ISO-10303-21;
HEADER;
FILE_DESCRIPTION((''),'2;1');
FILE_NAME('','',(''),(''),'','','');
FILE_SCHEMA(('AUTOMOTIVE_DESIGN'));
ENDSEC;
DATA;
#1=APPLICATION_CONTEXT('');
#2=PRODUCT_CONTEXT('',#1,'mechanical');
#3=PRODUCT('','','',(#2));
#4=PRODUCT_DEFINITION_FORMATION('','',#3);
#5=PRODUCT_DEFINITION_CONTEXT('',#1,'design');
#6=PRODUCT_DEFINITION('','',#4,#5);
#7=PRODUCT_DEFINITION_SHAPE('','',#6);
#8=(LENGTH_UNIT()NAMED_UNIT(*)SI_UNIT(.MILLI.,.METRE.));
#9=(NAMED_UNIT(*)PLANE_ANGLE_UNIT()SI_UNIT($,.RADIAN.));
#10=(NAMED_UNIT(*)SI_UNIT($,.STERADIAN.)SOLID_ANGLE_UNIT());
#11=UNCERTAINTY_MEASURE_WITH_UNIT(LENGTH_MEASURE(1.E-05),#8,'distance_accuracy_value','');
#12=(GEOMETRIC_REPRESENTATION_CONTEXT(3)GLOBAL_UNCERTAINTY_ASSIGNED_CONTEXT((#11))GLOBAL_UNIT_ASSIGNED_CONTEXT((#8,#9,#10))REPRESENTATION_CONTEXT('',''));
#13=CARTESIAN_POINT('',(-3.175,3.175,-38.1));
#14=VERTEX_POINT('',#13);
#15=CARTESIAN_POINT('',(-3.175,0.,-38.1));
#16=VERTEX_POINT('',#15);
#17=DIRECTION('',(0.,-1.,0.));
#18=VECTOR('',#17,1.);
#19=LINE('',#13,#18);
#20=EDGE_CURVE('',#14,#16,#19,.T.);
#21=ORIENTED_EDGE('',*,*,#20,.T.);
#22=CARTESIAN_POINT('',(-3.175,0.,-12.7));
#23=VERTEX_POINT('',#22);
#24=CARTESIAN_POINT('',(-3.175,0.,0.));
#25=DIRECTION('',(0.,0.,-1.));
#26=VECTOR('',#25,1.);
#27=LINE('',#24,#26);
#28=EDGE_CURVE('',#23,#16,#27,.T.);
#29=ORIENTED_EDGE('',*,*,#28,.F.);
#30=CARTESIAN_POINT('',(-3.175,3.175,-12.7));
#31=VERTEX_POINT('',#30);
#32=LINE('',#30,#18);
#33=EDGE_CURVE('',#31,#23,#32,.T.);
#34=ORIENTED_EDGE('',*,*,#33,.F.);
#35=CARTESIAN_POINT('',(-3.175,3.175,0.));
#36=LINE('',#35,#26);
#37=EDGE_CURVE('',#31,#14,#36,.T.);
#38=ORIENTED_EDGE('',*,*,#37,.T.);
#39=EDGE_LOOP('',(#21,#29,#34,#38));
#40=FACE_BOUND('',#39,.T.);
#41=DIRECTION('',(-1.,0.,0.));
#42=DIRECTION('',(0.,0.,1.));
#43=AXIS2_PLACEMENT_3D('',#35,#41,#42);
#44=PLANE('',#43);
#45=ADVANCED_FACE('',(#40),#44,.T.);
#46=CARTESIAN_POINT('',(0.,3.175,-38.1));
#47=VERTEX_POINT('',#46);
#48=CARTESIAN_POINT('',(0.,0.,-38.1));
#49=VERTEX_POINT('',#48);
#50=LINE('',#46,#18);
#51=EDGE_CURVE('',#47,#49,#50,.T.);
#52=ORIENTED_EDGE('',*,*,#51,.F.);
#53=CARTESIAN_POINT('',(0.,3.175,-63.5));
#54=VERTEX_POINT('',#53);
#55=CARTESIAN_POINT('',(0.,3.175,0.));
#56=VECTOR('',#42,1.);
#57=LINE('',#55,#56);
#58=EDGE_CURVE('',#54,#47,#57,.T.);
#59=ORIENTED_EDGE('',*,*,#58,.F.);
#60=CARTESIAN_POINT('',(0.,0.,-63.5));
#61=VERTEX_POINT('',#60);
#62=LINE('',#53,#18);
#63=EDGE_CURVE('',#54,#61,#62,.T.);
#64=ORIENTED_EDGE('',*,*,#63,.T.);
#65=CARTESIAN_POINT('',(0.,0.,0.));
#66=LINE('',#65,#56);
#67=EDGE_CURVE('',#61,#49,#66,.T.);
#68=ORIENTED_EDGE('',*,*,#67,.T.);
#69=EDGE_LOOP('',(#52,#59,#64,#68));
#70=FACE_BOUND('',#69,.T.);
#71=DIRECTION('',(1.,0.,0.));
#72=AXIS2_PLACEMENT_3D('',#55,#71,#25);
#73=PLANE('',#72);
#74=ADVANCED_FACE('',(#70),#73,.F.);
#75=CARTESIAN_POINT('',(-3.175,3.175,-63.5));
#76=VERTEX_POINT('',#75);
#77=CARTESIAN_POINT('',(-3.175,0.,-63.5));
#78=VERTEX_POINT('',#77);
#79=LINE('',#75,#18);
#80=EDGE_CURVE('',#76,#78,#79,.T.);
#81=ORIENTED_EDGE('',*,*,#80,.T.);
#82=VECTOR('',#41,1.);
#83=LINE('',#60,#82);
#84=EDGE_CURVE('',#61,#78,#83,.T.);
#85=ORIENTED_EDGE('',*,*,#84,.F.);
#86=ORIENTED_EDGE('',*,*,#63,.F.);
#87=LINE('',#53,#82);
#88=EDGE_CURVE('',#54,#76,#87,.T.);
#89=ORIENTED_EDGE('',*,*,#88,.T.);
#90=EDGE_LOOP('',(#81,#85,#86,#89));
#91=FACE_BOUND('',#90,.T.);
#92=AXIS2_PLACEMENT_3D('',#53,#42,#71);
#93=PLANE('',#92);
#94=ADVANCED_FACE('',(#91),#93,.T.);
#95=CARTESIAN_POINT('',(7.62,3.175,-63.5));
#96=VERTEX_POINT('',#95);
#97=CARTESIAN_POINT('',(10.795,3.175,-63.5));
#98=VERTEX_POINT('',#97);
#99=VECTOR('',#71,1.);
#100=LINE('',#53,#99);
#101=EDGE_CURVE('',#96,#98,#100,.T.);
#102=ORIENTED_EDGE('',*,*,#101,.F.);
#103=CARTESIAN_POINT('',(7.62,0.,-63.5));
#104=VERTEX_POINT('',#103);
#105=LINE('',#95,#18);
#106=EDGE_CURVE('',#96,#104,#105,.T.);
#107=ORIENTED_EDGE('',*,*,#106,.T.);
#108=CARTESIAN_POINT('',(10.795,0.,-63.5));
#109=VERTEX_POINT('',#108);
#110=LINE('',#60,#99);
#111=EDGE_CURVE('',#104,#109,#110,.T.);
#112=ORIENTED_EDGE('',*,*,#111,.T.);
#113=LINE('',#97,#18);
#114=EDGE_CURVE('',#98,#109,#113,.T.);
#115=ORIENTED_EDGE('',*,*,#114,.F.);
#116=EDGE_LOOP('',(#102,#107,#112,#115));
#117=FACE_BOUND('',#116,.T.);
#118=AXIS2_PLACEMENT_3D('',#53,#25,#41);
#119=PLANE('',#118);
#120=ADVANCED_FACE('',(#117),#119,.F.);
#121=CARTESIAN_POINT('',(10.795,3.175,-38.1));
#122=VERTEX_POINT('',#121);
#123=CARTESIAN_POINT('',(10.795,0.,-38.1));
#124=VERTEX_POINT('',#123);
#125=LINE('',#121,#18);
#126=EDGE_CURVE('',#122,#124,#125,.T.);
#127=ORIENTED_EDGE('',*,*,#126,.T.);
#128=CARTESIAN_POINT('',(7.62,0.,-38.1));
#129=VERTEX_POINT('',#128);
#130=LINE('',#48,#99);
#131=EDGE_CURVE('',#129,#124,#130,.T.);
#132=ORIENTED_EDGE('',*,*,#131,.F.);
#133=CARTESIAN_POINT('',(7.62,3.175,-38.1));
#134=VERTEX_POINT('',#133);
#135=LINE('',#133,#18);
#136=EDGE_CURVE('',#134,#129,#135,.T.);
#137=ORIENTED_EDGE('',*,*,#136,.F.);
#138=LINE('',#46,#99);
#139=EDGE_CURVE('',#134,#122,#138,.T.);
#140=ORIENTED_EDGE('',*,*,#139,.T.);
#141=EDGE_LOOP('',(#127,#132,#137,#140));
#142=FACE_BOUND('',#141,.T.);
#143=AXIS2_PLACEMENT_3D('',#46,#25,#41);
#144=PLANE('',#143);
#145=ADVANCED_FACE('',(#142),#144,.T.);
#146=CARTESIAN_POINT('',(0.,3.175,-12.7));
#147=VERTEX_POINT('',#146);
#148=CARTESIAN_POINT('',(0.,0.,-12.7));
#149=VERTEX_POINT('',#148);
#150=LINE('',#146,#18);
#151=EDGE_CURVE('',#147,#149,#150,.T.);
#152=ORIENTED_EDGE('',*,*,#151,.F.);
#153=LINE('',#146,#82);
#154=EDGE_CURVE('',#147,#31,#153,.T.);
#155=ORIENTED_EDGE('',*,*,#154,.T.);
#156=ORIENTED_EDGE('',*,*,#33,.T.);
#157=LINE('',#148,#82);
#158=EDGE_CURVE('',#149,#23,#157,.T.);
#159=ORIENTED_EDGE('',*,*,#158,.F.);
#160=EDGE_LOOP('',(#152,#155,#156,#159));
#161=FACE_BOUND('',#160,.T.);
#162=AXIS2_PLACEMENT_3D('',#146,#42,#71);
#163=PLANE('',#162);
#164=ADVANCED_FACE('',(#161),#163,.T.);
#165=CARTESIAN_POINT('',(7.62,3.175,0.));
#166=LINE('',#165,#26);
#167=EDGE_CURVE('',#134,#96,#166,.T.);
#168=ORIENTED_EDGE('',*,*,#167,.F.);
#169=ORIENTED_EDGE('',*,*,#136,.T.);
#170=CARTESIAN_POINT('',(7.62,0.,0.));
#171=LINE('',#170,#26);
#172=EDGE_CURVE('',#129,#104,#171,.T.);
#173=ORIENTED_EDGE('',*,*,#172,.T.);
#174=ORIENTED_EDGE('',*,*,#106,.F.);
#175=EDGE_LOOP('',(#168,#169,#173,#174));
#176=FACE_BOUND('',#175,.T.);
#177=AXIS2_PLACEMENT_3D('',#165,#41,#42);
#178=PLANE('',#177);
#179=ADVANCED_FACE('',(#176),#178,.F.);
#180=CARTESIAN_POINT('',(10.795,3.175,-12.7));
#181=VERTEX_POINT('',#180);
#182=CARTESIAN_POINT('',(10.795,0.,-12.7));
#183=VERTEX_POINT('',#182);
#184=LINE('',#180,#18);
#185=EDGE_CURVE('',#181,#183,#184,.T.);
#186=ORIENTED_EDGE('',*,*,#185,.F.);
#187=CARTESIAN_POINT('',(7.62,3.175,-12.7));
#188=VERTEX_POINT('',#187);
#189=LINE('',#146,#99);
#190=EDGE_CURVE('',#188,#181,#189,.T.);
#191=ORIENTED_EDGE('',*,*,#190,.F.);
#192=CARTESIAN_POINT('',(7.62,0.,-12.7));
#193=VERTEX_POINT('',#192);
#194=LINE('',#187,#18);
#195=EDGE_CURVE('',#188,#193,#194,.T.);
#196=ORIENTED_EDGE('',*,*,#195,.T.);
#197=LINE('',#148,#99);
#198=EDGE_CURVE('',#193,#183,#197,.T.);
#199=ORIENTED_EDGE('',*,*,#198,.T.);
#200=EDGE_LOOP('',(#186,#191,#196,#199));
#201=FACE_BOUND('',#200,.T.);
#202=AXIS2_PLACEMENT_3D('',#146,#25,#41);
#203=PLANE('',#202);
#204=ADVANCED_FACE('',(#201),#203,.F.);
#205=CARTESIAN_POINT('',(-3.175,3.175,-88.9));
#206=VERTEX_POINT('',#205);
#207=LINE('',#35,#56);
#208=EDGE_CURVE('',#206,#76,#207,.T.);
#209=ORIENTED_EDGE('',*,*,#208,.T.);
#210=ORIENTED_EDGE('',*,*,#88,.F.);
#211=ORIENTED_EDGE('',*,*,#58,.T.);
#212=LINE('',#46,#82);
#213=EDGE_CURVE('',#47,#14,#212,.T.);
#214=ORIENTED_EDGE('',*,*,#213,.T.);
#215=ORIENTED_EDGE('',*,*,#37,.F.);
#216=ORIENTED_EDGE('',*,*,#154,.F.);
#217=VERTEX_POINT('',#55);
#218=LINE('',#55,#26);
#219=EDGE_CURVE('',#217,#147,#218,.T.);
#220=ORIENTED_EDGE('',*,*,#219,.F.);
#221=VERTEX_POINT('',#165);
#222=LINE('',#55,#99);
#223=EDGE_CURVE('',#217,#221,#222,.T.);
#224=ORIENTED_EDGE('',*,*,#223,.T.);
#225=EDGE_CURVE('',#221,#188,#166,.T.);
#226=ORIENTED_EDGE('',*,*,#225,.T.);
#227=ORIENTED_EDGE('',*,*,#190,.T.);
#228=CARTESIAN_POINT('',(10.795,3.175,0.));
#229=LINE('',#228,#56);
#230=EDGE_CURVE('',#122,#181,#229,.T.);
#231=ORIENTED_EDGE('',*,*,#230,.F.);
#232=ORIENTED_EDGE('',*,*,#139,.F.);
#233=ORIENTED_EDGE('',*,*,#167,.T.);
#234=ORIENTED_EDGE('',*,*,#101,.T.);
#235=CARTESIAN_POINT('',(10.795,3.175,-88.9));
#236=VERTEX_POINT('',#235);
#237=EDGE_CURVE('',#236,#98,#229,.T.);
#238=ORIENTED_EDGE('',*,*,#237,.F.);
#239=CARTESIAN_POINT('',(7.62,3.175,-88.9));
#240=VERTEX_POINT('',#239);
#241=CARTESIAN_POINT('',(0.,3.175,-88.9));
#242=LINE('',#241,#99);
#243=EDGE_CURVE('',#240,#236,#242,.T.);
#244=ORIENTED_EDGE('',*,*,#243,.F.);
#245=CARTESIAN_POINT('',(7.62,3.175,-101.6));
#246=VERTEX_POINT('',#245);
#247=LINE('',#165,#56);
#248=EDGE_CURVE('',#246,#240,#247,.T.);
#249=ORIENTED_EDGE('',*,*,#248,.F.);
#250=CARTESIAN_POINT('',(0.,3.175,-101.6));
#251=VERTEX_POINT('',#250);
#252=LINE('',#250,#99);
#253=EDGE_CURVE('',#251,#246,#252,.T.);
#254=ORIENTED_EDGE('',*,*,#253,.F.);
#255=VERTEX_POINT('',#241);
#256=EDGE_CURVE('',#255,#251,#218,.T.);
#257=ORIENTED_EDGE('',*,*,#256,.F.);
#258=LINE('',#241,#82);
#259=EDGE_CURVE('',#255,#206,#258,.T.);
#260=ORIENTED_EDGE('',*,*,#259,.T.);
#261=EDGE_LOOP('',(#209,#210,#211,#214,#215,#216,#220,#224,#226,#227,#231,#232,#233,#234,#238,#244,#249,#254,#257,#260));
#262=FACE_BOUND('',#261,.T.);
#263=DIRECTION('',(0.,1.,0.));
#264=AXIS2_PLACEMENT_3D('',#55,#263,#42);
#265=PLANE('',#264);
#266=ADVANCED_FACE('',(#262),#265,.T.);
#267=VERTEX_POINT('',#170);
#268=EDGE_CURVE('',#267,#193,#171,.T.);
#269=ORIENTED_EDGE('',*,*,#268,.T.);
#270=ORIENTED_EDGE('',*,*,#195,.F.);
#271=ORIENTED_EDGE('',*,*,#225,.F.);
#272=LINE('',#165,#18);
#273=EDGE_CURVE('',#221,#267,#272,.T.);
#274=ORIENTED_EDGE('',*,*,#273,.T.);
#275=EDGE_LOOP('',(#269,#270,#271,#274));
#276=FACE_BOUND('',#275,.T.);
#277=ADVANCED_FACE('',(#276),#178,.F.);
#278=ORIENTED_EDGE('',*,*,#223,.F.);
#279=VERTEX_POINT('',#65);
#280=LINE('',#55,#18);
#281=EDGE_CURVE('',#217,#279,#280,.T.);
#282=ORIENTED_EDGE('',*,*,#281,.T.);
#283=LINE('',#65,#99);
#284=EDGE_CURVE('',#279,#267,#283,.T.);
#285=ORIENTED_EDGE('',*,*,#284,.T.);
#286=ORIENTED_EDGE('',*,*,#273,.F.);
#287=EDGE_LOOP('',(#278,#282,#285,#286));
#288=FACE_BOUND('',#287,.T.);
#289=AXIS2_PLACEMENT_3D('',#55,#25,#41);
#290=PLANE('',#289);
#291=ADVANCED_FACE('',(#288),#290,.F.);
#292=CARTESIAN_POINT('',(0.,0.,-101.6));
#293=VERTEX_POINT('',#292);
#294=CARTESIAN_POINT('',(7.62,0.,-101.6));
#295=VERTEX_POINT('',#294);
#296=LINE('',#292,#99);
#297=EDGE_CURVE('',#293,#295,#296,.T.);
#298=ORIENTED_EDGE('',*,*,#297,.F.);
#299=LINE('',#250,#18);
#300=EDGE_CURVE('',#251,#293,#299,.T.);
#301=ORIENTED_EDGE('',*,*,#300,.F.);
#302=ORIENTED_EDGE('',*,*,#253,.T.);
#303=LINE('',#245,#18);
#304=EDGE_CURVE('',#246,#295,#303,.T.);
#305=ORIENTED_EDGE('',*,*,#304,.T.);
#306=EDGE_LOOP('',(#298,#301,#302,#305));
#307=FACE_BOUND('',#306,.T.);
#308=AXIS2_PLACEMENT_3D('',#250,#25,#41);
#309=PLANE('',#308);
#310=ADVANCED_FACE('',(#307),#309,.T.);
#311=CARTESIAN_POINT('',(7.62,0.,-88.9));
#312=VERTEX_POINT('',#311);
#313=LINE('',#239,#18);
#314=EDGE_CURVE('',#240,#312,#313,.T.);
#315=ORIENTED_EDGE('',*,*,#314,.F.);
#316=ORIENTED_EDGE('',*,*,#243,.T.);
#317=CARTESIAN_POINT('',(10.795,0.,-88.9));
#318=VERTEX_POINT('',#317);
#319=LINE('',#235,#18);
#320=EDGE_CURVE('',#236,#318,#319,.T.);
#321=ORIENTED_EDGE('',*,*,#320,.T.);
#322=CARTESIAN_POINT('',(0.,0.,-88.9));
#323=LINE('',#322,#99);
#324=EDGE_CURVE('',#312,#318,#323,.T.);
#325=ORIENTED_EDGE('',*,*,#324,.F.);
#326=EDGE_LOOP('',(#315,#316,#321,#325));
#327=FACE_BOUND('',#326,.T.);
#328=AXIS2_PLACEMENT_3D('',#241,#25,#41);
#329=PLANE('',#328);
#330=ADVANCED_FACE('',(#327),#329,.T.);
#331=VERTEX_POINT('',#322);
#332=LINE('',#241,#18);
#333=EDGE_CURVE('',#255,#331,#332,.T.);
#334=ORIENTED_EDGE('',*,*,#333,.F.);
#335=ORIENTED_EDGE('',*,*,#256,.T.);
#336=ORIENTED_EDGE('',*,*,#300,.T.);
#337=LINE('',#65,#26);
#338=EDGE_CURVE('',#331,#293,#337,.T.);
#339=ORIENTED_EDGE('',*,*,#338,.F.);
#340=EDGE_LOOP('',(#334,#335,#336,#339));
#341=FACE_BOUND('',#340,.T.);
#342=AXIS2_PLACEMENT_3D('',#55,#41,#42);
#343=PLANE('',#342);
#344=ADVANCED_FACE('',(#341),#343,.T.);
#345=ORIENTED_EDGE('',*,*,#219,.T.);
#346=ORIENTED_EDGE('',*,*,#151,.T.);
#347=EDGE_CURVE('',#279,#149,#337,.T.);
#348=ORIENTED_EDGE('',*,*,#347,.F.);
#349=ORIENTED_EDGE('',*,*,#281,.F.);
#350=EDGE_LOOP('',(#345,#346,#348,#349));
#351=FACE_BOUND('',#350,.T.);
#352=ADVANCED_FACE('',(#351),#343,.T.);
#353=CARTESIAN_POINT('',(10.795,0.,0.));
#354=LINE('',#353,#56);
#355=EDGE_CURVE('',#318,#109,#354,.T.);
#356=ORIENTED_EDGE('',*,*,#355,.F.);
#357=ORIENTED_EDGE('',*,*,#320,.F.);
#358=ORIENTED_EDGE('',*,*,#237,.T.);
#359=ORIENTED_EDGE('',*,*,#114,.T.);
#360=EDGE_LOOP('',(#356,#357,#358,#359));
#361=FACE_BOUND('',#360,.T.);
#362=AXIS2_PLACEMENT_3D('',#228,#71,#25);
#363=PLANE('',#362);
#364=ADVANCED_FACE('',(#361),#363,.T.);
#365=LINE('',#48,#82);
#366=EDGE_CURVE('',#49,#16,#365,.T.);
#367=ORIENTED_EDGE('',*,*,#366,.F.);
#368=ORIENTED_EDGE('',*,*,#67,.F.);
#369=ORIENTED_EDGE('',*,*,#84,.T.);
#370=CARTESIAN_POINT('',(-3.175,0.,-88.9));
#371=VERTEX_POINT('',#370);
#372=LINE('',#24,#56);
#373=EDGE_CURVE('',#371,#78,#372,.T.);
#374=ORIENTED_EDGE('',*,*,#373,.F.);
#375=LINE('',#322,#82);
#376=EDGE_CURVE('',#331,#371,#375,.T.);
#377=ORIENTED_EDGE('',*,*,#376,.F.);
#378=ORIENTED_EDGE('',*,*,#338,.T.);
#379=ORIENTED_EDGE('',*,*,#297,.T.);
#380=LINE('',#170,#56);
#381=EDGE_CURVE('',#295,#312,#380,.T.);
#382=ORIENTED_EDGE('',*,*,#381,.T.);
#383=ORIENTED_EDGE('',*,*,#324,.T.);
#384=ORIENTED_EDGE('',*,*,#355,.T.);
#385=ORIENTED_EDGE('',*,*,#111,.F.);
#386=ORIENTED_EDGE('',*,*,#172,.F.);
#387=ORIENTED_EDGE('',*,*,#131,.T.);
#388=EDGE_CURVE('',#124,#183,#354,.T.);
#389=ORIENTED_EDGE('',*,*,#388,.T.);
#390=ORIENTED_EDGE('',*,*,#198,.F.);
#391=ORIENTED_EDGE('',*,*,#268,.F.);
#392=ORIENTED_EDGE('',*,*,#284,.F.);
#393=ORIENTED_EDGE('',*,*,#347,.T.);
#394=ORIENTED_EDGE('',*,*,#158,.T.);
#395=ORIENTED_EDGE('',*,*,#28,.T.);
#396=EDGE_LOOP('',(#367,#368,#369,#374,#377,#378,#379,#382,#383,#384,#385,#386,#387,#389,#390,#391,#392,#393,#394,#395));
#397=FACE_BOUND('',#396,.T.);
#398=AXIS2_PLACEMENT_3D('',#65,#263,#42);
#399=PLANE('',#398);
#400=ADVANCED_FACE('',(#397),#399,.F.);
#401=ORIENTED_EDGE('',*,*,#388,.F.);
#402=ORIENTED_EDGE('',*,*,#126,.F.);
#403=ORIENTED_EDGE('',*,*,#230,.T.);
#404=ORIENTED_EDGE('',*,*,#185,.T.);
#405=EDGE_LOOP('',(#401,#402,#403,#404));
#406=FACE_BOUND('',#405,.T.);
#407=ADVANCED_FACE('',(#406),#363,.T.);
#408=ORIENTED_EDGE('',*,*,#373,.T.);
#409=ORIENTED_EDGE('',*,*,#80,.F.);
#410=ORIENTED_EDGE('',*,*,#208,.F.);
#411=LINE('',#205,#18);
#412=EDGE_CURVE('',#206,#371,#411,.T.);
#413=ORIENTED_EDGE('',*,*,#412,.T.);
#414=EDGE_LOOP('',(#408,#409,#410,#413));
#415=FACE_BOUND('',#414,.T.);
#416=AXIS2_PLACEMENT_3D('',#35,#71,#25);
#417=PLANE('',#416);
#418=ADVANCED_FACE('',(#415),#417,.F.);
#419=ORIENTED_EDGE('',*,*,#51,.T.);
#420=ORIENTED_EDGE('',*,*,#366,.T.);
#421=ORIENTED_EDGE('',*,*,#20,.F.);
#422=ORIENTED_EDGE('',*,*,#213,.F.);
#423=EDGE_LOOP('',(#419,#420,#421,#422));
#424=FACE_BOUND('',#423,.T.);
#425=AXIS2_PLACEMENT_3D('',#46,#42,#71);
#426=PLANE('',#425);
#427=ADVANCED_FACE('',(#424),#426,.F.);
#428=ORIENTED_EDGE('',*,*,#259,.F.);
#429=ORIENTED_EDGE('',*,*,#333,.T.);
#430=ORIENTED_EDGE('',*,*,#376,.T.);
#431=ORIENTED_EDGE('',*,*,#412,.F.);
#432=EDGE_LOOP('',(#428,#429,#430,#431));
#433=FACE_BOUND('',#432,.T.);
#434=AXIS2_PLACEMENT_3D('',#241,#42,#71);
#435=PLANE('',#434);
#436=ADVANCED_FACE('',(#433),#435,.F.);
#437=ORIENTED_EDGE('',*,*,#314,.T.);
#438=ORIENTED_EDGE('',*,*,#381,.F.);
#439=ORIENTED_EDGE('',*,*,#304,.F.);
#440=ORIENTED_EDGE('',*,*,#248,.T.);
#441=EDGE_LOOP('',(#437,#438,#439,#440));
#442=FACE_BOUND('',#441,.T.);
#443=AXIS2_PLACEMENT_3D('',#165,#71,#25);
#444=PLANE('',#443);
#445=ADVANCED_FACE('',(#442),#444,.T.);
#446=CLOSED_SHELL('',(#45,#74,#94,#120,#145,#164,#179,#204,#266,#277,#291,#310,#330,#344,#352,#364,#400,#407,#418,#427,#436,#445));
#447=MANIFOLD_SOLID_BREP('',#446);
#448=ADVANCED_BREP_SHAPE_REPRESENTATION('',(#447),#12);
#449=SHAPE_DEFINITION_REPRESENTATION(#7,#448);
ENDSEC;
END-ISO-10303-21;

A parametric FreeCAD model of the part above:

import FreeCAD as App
import Part
import Sketcher
Q = App.Units.Quantity

doc = App.newDocument("Part")
body = doc.addObject("PartDesign::Body", "Body")

sketch1 = doc.addObject("Sketcher::SketchObject", "Sketch")
body.addObject(sketch1)
sketch1.AttachmentSupport = (doc.XZ_Plane, [""])
sketch1.MapMode = "FlatFace"
sketch1.addGeometry(Part.LineSegment(App.Vector(10.8, -12.7, 0), App.Vector(10.8, -38.1, 0)), False)
sketch1.addGeometry(Part.LineSegment(App.Vector(10.8, -38.1, 0), App.Vector(7.6, -38.1, 0)), False)
sketch1.addGeometry(Part.LineSegment(App.Vector(7.6, -38.1, 0), App.Vector(7.6, -63.5, 0)), False)
sketch1.addGeometry(Part.LineSegment(App.Vector(7.6, -63.5, 0), App.Vector(10.8, -63.5, 0)), False)
sketch1.addGeometry(Part.LineSegment(App.Vector(10.8, -63.5, 0), App.Vector(10.8, -88.9, 0)), False)
sketch1.addGeometry(Part.LineSegment(App.Vector(10.8, -88.9, 0), App.Vector(7.6, -88.9, 0)), False)
sketch1.addGeometry(Part.LineSegment(App.Vector(7.6, -88.9, 0), App.Vector(7.6, -101.6, 0)), False)
sketch1.addGeometry(Part.LineSegment(App.Vector(7.6, -101.6, 0), App.Vector(0, -101.6, 0)), False)
sketch1.addGeometry(Part.LineSegment(App.Vector(0, -101.6, 0), App.Vector(0, -88.9, 0)), False)
sketch1.addGeometry(Part.LineSegment(App.Vector(0, -88.9, 0), App.Vector(-3.2, -88.9, 0)), False)
sketch1.addGeometry(Part.LineSegment(App.Vector(-3.2, -88.9, 0), App.Vector(-3.2, -63.5, 0)), False)
sketch1.addGeometry(Part.LineSegment(App.Vector(-3.2, -63.5, 0), App.Vector(0, -63.5, 0)), False)
sketch1.addGeometry(Part.LineSegment(App.Vector(0, -63.5, 0), App.Vector(0, -38.1, 0)), False)
sketch1.addGeometry(Part.LineSegment(App.Vector(0, -38.1, 0), App.Vector(-3.2, -38.1, 0)), False)
sketch1.addGeometry(Part.LineSegment(App.Vector(-3.2, -38.1, 0), App.Vector(-3.2, -12.7, 0)), False)
sketch1.addGeometry(Part.LineSegment(App.Vector(-3.2, -12.7, 0), App.Vector(0, -12.7, 0)), False)
sketch1.addGeometry(Part.LineSegment(App.Vector(0, -12.7, 0), App.Vector(0, 0, 0)), False)
sketch1.addGeometry(Part.LineSegment(App.Vector(0, 0, 0), App.Vector(7.6, 0, 0)), False)
sketch1.addGeometry(Part.LineSegment(App.Vector(7.6, 0, 0), App.Vector(7.6, -12.7, 0)), False)
sketch1.addGeometry(Part.LineSegment(App.Vector(7.6, -12.7, 0), App.Vector(10.8, -12.7, 0)), False)
sketch1.addConstraint(Sketcher.Constraint("Coincident", 0, 2, 1, 1))
sketch1.addConstraint(Sketcher.Constraint("Coincident", 1, 2, 2, 1))
sketch1.addConstraint(Sketcher.Constraint("Coincident", 2, 2, 3, 1))
sketch1.addConstraint(Sketcher.Constraint("Coincident", 3, 2, 4, 1))
sketch1.addConstraint(Sketcher.Constraint("Coincident", 4, 2, 5, 1))
sketch1.addConstraint(Sketcher.Constraint("Coincident", 5, 2, 6, 1))
sketch1.addConstraint(Sketcher.Constraint("Coincident", 6, 2, 7, 1))
sketch1.addConstraint(Sketcher.Constraint("Coincident", 7, 2, 8, 1))
sketch1.addConstraint(Sketcher.Constraint("Coincident", 8, 2, 9, 1))
sketch1.addConstraint(Sketcher.Constraint("Coincident", 9, 2, 10, 1))
sketch1.addConstraint(Sketcher.Constraint("Coincident", 10, 2, 11, 1))
sketch1.addConstraint(Sketcher.Constraint("Coincident", 11, 2, 12, 1))
sketch1.addConstraint(Sketcher.Constraint("Coincident", 12, 2, 13, 1))
sketch1.addConstraint(Sketcher.Constraint("Coincident", 13, 2, 14, 1))
sketch1.addConstraint(Sketcher.Constraint("Coincident", 14, 2, 15, 1))
sketch1.addConstraint(Sketcher.Constraint("Coincident", 15, 2, 16, 1))
sketch1.addConstraint(Sketcher.Constraint("Coincident", 16, 2, 17, 1))
sketch1.addConstraint(Sketcher.Constraint("Coincident", 17, 2, 18, 1))
sketch1.addConstraint(Sketcher.Constraint("Coincident", 18, 2, 19, 1))
sketch1.addConstraint(Sketcher.Constraint("Coincident", 19, 2, 0, 1))
sketch1.addConstraint(Sketcher.Constraint("Vertical", 0))
sketch1.addConstraint(Sketcher.Constraint("Horizontal", 1))
sketch1.addConstraint(Sketcher.Constraint("Vertical", 2))
sketch1.addConstraint(Sketcher.Constraint("Horizontal", 3))
sketch1.addConstraint(Sketcher.Constraint("Vertical", 4))
sketch1.addConstraint(Sketcher.Constraint("Horizontal", 5))
sketch1.addConstraint(Sketcher.Constraint("Vertical", 6))
sketch1.addConstraint(Sketcher.Constraint("Horizontal", 7))
sketch1.addConstraint(Sketcher.Constraint("Vertical", 8))
sketch1.addConstraint(Sketcher.Constraint("Horizontal", 9))
sketch1.addConstraint(Sketcher.Constraint("Vertical", 10))
sketch1.addConstraint(Sketcher.Constraint("Horizontal", 11))
sketch1.addConstraint(Sketcher.Constraint("Vertical", 12))
sketch1.addConstraint(Sketcher.Constraint("Horizontal", 13))
sketch1.addConstraint(Sketcher.Constraint("Vertical", 14))
sketch1.addConstraint(Sketcher.Constraint("Horizontal", 15))
sketch1.addConstraint(Sketcher.Constraint("Vertical", 16))
sketch1.addConstraint(Sketcher.Constraint("Horizontal", 17))
sketch1.addConstraint(Sketcher.Constraint("Vertical", 18))
sketch1.addConstraint(Sketcher.Constraint("Horizontal", 19))
sketch1.addConstraint(Sketcher.Constraint("Coincident", 16, 2, -1, 1))
sketch1.addConstraint(Sketcher.Constraint("PointOnObject", 7, 2, -2))
sketch1.addConstraint(Sketcher.Constraint("PointOnObject", 11, 2, -2))
sketch1.addConstraint(Sketcher.Constraint("Horizontal", 5, 2, 8, 2))
sketch1.addConstraint(Sketcher.Constraint("Horizontal", 3, 2, 10, 2))
sketch1.addConstraint(Sketcher.Constraint("Horizontal", 1, 2, 12, 2))
sketch1.addConstraint(Sketcher.Constraint("Horizontal", 15, 2, 18, 2))
sketch1.addConstraint(Sketcher.Constraint("Vertical", 0, 2, 3, 2))
sketch1.addConstraint(Sketcher.Constraint("Vertical", 2, 2, 5, 2))
sketch1.addConstraint(Sketcher.Constraint("Vertical", 10, 2, 13, 2))
sketch1.addConstraint(Sketcher.Constraint("Vertical", 6, 2, 17, 2))
sketch1.addConstraint(Sketcher.Constraint("Equal", 5, 9))
sketch1.addConstraint(Sketcher.Constraint("Equal", 0, 2))
sketch1.addConstraint(Sketcher.Constraint("Equal", 2, 4))
sketch1.addConstraint(Sketcher.Constraint("Equal", 8, 16))
sketch1.addConstraint(Sketcher.Constraint("DistanceY", 0, 2, 0, 1, Q("1 in")))
sketch1.addConstraint(Sketcher.Constraint("DistanceX", 7, 2, 7, 1, Q("0.3 in")))
sketch1.addConstraint(Sketcher.Constraint("DistanceY", 6, 2, 6, 1, Q("0.5 in")))
sketch1.addConstraint(Sketcher.Constraint("DistanceX", 1, 2, 1, 1, Q("0.125 in")))
pad1 = doc.addObject("PartDesign::Pad", "Pad")
body.addObject(pad1)
pad1.Profile = sketch1
pad1.Length = Q("0.125 in")
pad1.Reversed = True

doc.recompute()
